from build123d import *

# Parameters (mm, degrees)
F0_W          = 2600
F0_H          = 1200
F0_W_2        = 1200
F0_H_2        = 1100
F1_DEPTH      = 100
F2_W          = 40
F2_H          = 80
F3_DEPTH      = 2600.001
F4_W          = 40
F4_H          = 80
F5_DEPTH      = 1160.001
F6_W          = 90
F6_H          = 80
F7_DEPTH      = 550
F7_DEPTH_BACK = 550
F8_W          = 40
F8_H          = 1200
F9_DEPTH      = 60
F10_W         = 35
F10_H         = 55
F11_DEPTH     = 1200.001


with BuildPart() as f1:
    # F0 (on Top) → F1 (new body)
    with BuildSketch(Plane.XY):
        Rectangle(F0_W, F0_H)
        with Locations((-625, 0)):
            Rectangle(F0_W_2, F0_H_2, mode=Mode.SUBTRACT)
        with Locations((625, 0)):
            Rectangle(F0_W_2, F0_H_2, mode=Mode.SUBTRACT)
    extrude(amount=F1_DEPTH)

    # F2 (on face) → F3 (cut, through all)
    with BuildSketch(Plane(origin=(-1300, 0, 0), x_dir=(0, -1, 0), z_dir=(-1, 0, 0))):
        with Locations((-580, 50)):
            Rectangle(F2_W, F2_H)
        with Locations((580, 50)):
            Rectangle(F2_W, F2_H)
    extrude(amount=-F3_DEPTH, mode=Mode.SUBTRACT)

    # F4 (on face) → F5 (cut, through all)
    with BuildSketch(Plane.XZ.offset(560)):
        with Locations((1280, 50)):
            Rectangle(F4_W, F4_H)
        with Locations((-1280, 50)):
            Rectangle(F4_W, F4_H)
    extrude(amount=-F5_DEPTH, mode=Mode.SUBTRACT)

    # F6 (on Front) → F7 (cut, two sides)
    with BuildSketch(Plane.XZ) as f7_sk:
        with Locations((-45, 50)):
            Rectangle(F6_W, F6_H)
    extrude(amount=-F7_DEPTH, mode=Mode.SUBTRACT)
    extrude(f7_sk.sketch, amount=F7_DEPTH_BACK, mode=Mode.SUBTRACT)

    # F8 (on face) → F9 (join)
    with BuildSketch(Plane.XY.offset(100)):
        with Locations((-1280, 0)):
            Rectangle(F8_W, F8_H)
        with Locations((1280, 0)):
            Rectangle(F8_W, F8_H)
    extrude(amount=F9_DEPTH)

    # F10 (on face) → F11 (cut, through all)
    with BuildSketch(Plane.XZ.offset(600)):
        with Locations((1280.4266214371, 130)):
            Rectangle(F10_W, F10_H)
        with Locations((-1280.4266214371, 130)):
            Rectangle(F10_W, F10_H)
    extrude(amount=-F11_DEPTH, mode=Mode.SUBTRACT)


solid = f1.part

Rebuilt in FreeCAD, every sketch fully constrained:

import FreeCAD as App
import Part
import Sketcher
from FreeCAD import Vector

doc = App.newDocument("Part")
body = doc.addObject("PartDesign::Body", "Body")

sketch1 = body.newObject("Sketcher::SketchObject", "Sketch")
sketch1.AttachmentSupport = (doc.getObject("XY_Plane"), [""])
sketch1.MapMode = "FlatFace"
sketch1.addGeometry(Part.LineSegment(Vector(-1300, 600, 0), Vector(-1300, -600, 0)), False)
sketch1.addGeometry(Part.LineSegment(Vector(-1300, -600, 0), Vector(1300, -600, 0)), False)
sketch1.addGeometry(Part.LineSegment(Vector(1300, -600, 0), Vector(1300, 600, 0)), False)
sketch1.addGeometry(Part.LineSegment(Vector(1300, 600, 0), Vector(-1300, 600, 0)), False)
sketch1.addGeometry(Part.LineSegment(Vector(-25, -550, 0), Vector(-1225, -550, 0)), False)
sketch1.addGeometry(Part.LineSegment(Vector(-1225, -550, 0), Vector(-1225, 550, 0)), False)
sketch1.addGeometry(Part.LineSegment(Vector(-1225, 550, 0), Vector(-25, 550, 0)), False)
sketch1.addGeometry(Part.LineSegment(Vector(-25, 550, 0), Vector(-25, -550, 0)), False)
sketch1.addGeometry(Part.LineSegment(Vector(1225, -550, 0), Vector(25, -550, 0)), False)
sketch1.addGeometry(Part.LineSegment(Vector(25, -550, 0), Vector(25, 550, 0)), False)
sketch1.addGeometry(Part.LineSegment(Vector(25, 550, 0), Vector(1225, 550, 0)), False)
sketch1.addGeometry(Part.LineSegment(Vector(1225, 550, 0), Vector(1225, -550, 0)), False)
sketch1.addConstraint(Sketcher.Constraint("Coincident", 0, 2, 1, 1))
sketch1.addConstraint(Sketcher.Constraint("Coincident", 1, 2, 2, 1))
sketch1.addConstraint(Sketcher.Constraint("Coincident", 2, 2, 3, 1))
sketch1.addConstraint(Sketcher.Constraint("Coincident", 3, 2, 0, 1))
sketch1.addConstraint(Sketcher.Constraint("Coincident", 4, 2, 5, 1))
sketch1.addConstraint(Sketcher.Constraint("Coincident", 5, 2, 6, 1))
sketch1.addConstraint(Sketcher.Constraint("Coincident", 6, 2, 7, 1))
sketch1.addConstraint(Sketcher.Constraint("Coincident", 7, 2, 4, 1))
sketch1.addConstraint(Sketcher.Constraint("Coincident", 8, 2, 9, 1))
sketch1.addConstraint(Sketcher.Constraint("Coincident", 9, 2, 10, 1))
sketch1.addConstraint(Sketcher.Constraint("Coincident", 10, 2, 11, 1))
sketch1.addConstraint(Sketcher.Constraint("Coincident", 11, 2, 8, 1))
sketch1.addConstraint(Sketcher.Constraint("Vertical", 0))
sketch1.addConstraint(Sketcher.Constraint("Horizontal", 1))
sketch1.addConstraint(Sketcher.Constraint("Vertical", 2))
sketch1.addConstraint(Sketcher.Constraint("Horizontal", 3))
sketch1.addConstraint(Sketcher.Constraint("Horizontal", 4))
sketch1.addConstraint(Sketcher.Constraint("Vertical", 5))
sketch1.addConstraint(Sketcher.Constraint("Horizontal", 6))
sketch1.addConstraint(Sketcher.Constraint("Vertical", 7))
sketch1.addConstraint(Sketcher.Constraint("Horizontal", 8))
sketch1.addConstraint(Sketcher.Constraint("Vertical", 9))
sketch1.addConstraint(Sketcher.Constraint("Horizontal", 10))
sketch1.addConstraint(Sketcher.Constraint("Vertical", 11))
sketch1.addConstraint(Sketcher.Constraint("Symmetric", 0, 2, 2, 2, -1, 1))
sketch1.addConstraint(Sketcher.Constraint("Symmetric", 6, 2, 8, 2, -1, 1))
sketch1.addConstraint(Sketcher.Constraint("Symmetric", 4, 2, 10, 2, -1, 1))
sketch1.addConstraint(Sketcher.Constraint("Horizontal", 7, 2, 8, 2))
sketch1.addConstraint(Sketcher.Constraint("Equal", 10, 0))
sketch1.addConstraint(Sketcher.Constraint("DistanceX", 1, 1, 1, 2, 2600.0))
sketch1.addConstraint(Sketcher.Constraint("DistanceX", 4, 2, 4, 1, 1200.0))
sketch1.addConstraint(Sketcher.Constraint("DistanceY", 5, 1, 5, 2, 1100.0))
sketch1.addConstraint(Sketcher.Constraint("DistanceX", 4, 2, -1, 1, 1225.0))
pad1 = body.newObject("PartDesign::Pad", "Pad")
pad1.Profile = sketch1
pad1.Length = 100

sketch2 = body.newObject("Sketcher::SketchObject", "Sketch001")
sketch2.AttachmentSupport = (doc.getObject("YZ_Plane"), [""])
sketch2.MapMode = "FlatFace"
sketch2.AttachmentOffset = App.Placement(Vector(0, 0, -1300), App.Rotation())
sketch2.addGeometry(Part.LineSegment(Vector(600, 90, 0), Vector(600, 10, 0)), False)
sketch2.addGeometry(Part.LineSegment(Vector(600, 10, 0), Vector(560, 10, 0)), False)
sketch2.addGeometry(Part.LineSegment(Vector(560, 10, 0), Vector(560, 90, 0)), False)
sketch2.addGeometry(Part.LineSegment(Vector(560, 90, 0), Vector(600, 90, 0)), False)
sketch2.addGeometry(Part.LineSegment(Vector(-560, 90, 0), Vector(-560, 10, 0)), False)
sketch2.addGeometry(Part.LineSegment(Vector(-560, 10, 0), Vector(-600, 10, 0)), False)
sketch2.addGeometry(Part.LineSegment(Vector(-600, 10, 0), Vector(-600, 90, 0)), False)
sketch2.addGeometry(Part.LineSegment(Vector(-600, 90, 0), Vector(-560, 90, 0)), False)
sketch2.addConstraint(Sketcher.Constraint("Coincident", 0, 2, 1, 1))
sketch2.addConstraint(Sketcher.Constraint("Coincident", 1, 2, 2, 1))
sketch2.addConstraint(Sketcher.Constraint("Coincident", 2, 2, 3, 1))
sketch2.addConstraint(Sketcher.Constraint("Coincident", 3, 2, 0, 1))
sketch2.addConstraint(Sketcher.Constraint("Coincident", 4, 2, 5, 1))
sketch2.addConstraint(Sketcher.Constraint("Coincident", 5, 2, 6, 1))
sketch2.addConstraint(Sketcher.Constraint("Coincident", 6, 2, 7, 1))
sketch2.addConstraint(Sketcher.Constraint("Coincident", 7, 2, 4, 1))
sketch2.addConstraint(Sketcher.Constraint("Vertical", 0))
sketch2.addConstraint(Sketcher.Constraint("Horizontal", 1))
sketch2.addConstraint(Sketcher.Constraint("Vertical", 2))
sketch2.addConstraint(Sketcher.Constraint("Horizontal", 3))
sketch2.addConstraint(Sketcher.Constraint("Vertical", 4))
sketch2.addConstraint(Sketcher.Constraint("Horizontal", 5))
sketch2.addConstraint(Sketcher.Constraint("Vertical", 6))
sketch2.addConstraint(Sketcher.Constraint("Horizontal", 7))
sketch2.addConstraint(Sketcher.Constraint("Symmetric", 1, 2, 4, 2, -2))
sketch2.addConstraint(Sketcher.Constraint("Symmetric", 3, 2, 6, 2, -2))
sketch2.addConstraint(Sketcher.Constraint("DistanceX", 1, 2, 1, 1, 40.0))
sketch2.addConstraint(Sketcher.Constraint("DistanceY", 0, 2, 0, 1, 80.0))
sketch2.addConstraint(Sketcher.Constraint("DistanceX", -1, 1, 0, 2, 600.0))
sketch2.addConstraint(Sketcher.Constraint("DistanceY", -1, 1, 0, 2, 10.0))
pocket1 = body.newObject("PartDesign::Pocket", "Pocket")
pocket1.Profile = sketch2
pocket1.Type = "ThroughAll"
pocket1.Reversed = True

sketch3 = body.newObject("Sketcher::SketchObject", "Sketch002")
sketch3.AttachmentSupport = (doc.getObject("XZ_Plane"), [""])
sketch3.MapMode = "FlatFace"
sketch3.AttachmentOffset = App.Placement(Vector(0, 0, 560), App.Rotation())
sketch3.addGeometry(Part.LineSegment(Vector(1260, 90, 0), Vector(1260, 10, 0)), False)
sketch3.addGeometry(Part.LineSegment(Vector(1260, 10, 0), Vector(1300, 10, 0)), False)
sketch3.addGeometry(Part.LineSegment(Vector(1300, 10, 0), Vector(1300, 90, 0)), False)
sketch3.addGeometry(Part.LineSegment(Vector(1300, 90, 0), Vector(1260, 90, 0)), False)
sketch3.addGeometry(Part.LineSegment(Vector(-1300, 90, 0), Vector(-1300, 10, 0)), False)
sketch3.addGeometry(Part.LineSegment(Vector(-1300, 10, 0), Vector(-1260, 10, 0)), False)
sketch3.addGeometry(Part.LineSegment(Vector(-1260, 10, 0), Vector(-1260, 90, 0)), False)
sketch3.addGeometry(Part.LineSegment(Vector(-1260, 90, 0), Vector(-1300, 90, 0)), False)
sketch3.addConstraint(Sketcher.Constraint("Coincident", 0, 2, 1, 1))
sketch3.addConstraint(Sketcher.Constraint("Coincident", 1, 2, 2, 1))
sketch3.addConstraint(Sketcher.Constraint("Coincident", 2, 2, 3, 1))
sketch3.addConstraint(Sketcher.Constraint("Coincident", 3, 2, 0, 1))
sketch3.addConstraint(Sketcher.Constraint("Coincident", 4, 2, 5, 1))
sketch3.addConstraint(Sketcher.Constraint("Coincident", 5, 2, 6, 1))
sketch3.addConstraint(Sketcher.Constraint("Coincident", 6, 2, 7, 1))
sketch3.addConstraint(Sketcher.Constraint("Coincident", 7, 2, 4, 1))
sketch3.addConstraint(Sketcher.Constraint("Vertical", 0))
sketch3.addConstraint(Sketcher.Constraint("Horizontal", 1))
sketch3.addConstraint(Sketcher.Constraint("Vertical", 2))
sketch3.addConstraint(Sketcher.Constraint("Horizontal", 3))
sketch3.addConstraint(Sketcher.Constraint("Vertical", 4))
sketch3.addConstraint(Sketcher.Constraint("Horizontal", 5))
sketch3.addConstraint(Sketcher.Constraint("Vertical", 6))
sketch3.addConstraint(Sketcher.Constraint("Horizontal", 7))
sketch3.addConstraint(Sketcher.Constraint("Symmetric", 1, 2, 4, 2, -2))
sketch3.addConstraint(Sketcher.Constraint("Symmetric", 3, 2, 6, 2, -2))
sketch3.addConstraint(Sketcher.Constraint("DistanceX", 1, 1, 1, 2, 40.0))
sketch3.addConstraint(Sketcher.Constraint("DistanceY", 0, 2, 0, 1, 80.0))
sketch3.addConstraint(Sketcher.Constraint("DistanceX", -1, 1, 0, 2, 1260.0))
sketch3.addConstraint(Sketcher.Constraint("DistanceY", -1, 1, 0, 2, 10.0))
pocket2 = body.newObject("PartDesign::Pocket", "Pocket001")
pocket2.Profile = sketch3
pocket2.Type = "ThroughAll"

sketch4 = body.newObject("Sketcher::SketchObject", "Sketch003")
sketch4.AttachmentSupport = (doc.getObject("XZ_Plane"), [""])
sketch4.MapMode = "FlatFace"
sketch4.addGeometry(Part.LineSegment(Vector(-90, 90, 0), Vector(-90, 10, 0)), False)
sketch4.addGeometry(Part.LineSegment(Vector(-90, 10, 0), Vector(0, 10, 0)), False)
sketch4.addGeometry(Part.LineSegment(Vector(0, 10, 0), Vector(0, 90, 0)), False)
sketch4.addGeometry(Part.LineSegment(Vector(0, 90, 0), Vector(-90, 90, 0)), False)
sketch4.addConstraint(Sketcher.Constraint("Coincident", 0, 2, 1, 1))
sketch4.addConstraint(Sketcher.Constraint("Coincident", 1, 2, 2, 1))
sketch4.addConstraint(Sketcher.Constraint("Coincident", 2, 2, 3, 1))
sketch4.addConstraint(Sketcher.Constraint("Coincident", 3, 2, 0, 1))
sketch4.addConstraint(Sketcher.Constraint("Vertical", 0))
sketch4.addConstraint(Sketcher.Constraint("Horizontal", 1))
sketch4.addConstraint(Sketcher.Constraint("Vertical", 2))
sketch4.addConstraint(Sketcher.Constraint("Horizontal", 3))
sketch4.addConstraint(Sketcher.Constraint("PointOnObject", 1, 2, -2))
sketch4.addConstraint(Sketcher.Constraint("DistanceX", 1, 1, 1, 2, 90.0))
sketch4.addConstraint(Sketcher.Constraint("DistanceY", 0, 2, 0, 1, 80.0))
sketch4.addConstraint(Sketcher.Constraint("DistanceY", -1, 1, 0, 2, 10.0))
pocket3 = body.newObject("PartDesign::Pocket", "Pocket002")
pocket3.Profile = sketch4
pocket3.Type = "TwoLengths"
pocket3.Length = 550
pocket3.Length2 = 550

sketch5 = body.newObject("Sketcher::SketchObject", "Sketch004")
sketch5.AttachmentSupport = (doc.getObject("XY_Plane"), [""])
sketch5.MapMode = "FlatFace"
sketch5.AttachmentOffset = App.Placement(Vector(0, 0, 100), App.Rotation())
sketch5.addGeometry(Part.LineSegment(Vector(-1300, 600, 0), Vector(-1300, -600, 0)), False)
sketch5.addGeometry(Part.LineSegment(Vector(-1300, -600, 0), Vector(-1260, -600, 0)), False)
sketch5.addGeometry(Part.LineSegment(Vector(-1260, -600, 0), Vector(-1260, 600, 0)), False)
sketch5.addGeometry(Part.LineSegment(Vector(-1260, 600, 0), Vector(-1300, 600, 0)), False)
sketch5.addGeometry(Part.LineSegment(Vector(1260, 600, 0), Vector(1260, -600, 0)), False)
sketch5.addGeometry(Part.LineSegment(Vector(1260, -600, 0), Vector(1300, -600, 0)), False)
sketch5.addGeometry(Part.LineSegment(Vector(1300, -600, 0), Vector(1300, 600, 0)), False)
sketch5.addGeometry(Part.LineSegment(Vector(1300, 600, 0), Vector(1260, 600, 0)), False)
sketch5.addConstraint(Sketcher.Constraint("Coincident", 0, 2, 1, 1))
sketch5.addConstraint(Sketcher.Constraint("Coincident", 1, 2, 2, 1))
sketch5.addConstraint(Sketcher.Constraint("Coincident", 2, 2, 3, 1))
sketch5.addConstraint(Sketcher.Constraint("Coincident", 3, 2, 0, 1))
sketch5.addConstraint(Sketcher.Constraint("Coincident", 4, 2, 5, 1))
sketch5.addConstraint(Sketcher.Constraint("Coincident", 5, 2, 6, 1))
sketch5.addConstraint(Sketcher.Constraint("Coincident", 6, 2, 7, 1))
sketch5.addConstraint(Sketcher.Constraint("Coincident", 7, 2, 4, 1))
sketch5.addConstraint(Sketcher.Constraint("Vertical", 0))
sketch5.addConstraint(Sketcher.Constraint("Horizontal", 1))
sketch5.addConstraint(Sketcher.Constraint("Vertical", 2))
sketch5.addConstraint(Sketcher.Constraint("Horizontal", 3))
sketch5.addConstraint(Sketcher.Constraint("Vertical", 4))
sketch5.addConstraint(Sketcher.Constraint("Horizontal", 5))
sketch5.addConstraint(Sketcher.Constraint("Vertical", 6))
sketch5.addConstraint(Sketcher.Constraint("Horizontal", 7))
sketch5.addConstraint(Sketcher.Constraint("Symmetric", 2, 2, 4, 2, -1, 1))
sketch5.addConstraint(Sketcher.Constraint("Symmetric", 0, 2, 6, 2, -1, 1))
sketch5.addConstraint(Sketcher.Constraint("Horizontal", 1, 2, 4, 2))
sketch5.addConstraint(Sketcher.Constraint("DistanceX", 1, 1, 1, 2, 40.0))
sketch5.addConstraint(Sketcher.Constraint("DistanceY", 0, 2, 0, 1, 1200.0))
sketch5.addConstraint(Sketcher.Constraint("DistanceX", 0, 2, -1, 1, 1300.0))
pad2 = body.newObject("PartDesign::Pad", "Pad001")
pad2.Profile = sketch5
pad2.Length = 60

sketch6 = body.newObject("Sketcher::SketchObject", "Sketch005")
sketch6.AttachmentSupport = (doc.getObject("XZ_Plane"), [""])
sketch6.MapMode = "FlatFace"
sketch6.AttachmentOffset = App.Placement(Vector(0, 0, 600), App.Rotation())
sketch6.addGeometry(Part.LineSegment(Vector(1263, 158, 0), Vector(1263, 102, 0)), False)
sketch6.addGeometry(Part.LineSegment(Vector(1263, 102, 0), Vector(1298, 102, 0)), False)
sketch6.addGeometry(Part.LineSegment(Vector(1298, 102, 0), Vector(1298, 158, 0)), False)
sketch6.addGeometry(Part.LineSegment(Vector(1298, 158, 0), Vector(1263, 158, 0)), False)
sketch6.addGeometry(Part.LineSegment(Vector(-1298, 158, 0), Vector(-1298, 102, 0)), False)
sketch6.addGeometry(Part.LineSegment(Vector(-1298, 102, 0), Vector(-1263, 102, 0)), False)
sketch6.addGeometry(Part.LineSegment(Vector(-1263, 102, 0), Vector(-1263, 158, 0)), False)
sketch6.addGeometry(Part.LineSegment(Vector(-1263, 158, 0), Vector(-1298, 158, 0)), False)
sketch6.addConstraint(Sketcher.Constraint("Coincident", 0, 2, 1, 1))
sketch6.addConstraint(Sketcher.Constraint("Coincident", 1, 2, 2, 1))
sketch6.addConstraint(Sketcher.Constraint("Coincident", 2, 2, 3, 1))
sketch6.addConstraint(Sketcher.Constraint("Coincident", 3, 2, 0, 1))
sketch6.addConstraint(Sketcher.Constraint("Coincident", 4, 2, 5, 1))
sketch6.addConstraint(Sketcher.Constraint("Coincident", 5, 2, 6, 1))
sketch6.addConstraint(Sketcher.Constraint("Coincident", 6, 2, 7, 1))
sketch6.addConstraint(Sketcher.Constraint("Coincident", 7, 2, 4, 1))
sketch6.addConstraint(Sketcher.Constraint("Vertical", 0))
sketch6.addConstraint(Sketcher.Constraint("Horizontal", 1))
sketch6.addConstraint(Sketcher.Constraint("Vertical", 2))
sketch6.addConstraint(Sketcher.Constraint("Horizontal", 3))
sketch6.addConstraint(Sketcher.Constraint("Vertical", 4))
sketch6.addConstraint(Sketcher.Constraint("Horizontal", 5))
sketch6.addConstraint(Sketcher.Constraint("Vertical", 6))
sketch6.addConstraint(Sketcher.Constraint("Horizontal", 7))
sketch6.addConstraint(Sketcher.Constraint("Symmetric", 1, 2, 4, 2, -2))
sketch6.addConstraint(Sketcher.Constraint("Symmetric", 3, 2, 6, 2, -2))
sketch6.addConstraint(Sketcher.Constraint("DistanceX", 1, 1, 1, 2, 35.0))
sketch6.addConstraint(Sketcher.Constraint("DistanceY", 0, 2, 0, 1, 55.0))
sketch6.addConstraint(Sketcher.Constraint("DistanceY", -1, 1, 0, 2, 102.5))
sketch6.addConstraint(Sketcher.Constraint("DistanceX", -1, 1, 0, 2, 1262.926621))
pocket4 = body.newObject("PartDesign::Pocket", "Pocket003")
pocket4.Profile = sketch6
pocket4.Type = "ThroughAll"

doc.recompute()
